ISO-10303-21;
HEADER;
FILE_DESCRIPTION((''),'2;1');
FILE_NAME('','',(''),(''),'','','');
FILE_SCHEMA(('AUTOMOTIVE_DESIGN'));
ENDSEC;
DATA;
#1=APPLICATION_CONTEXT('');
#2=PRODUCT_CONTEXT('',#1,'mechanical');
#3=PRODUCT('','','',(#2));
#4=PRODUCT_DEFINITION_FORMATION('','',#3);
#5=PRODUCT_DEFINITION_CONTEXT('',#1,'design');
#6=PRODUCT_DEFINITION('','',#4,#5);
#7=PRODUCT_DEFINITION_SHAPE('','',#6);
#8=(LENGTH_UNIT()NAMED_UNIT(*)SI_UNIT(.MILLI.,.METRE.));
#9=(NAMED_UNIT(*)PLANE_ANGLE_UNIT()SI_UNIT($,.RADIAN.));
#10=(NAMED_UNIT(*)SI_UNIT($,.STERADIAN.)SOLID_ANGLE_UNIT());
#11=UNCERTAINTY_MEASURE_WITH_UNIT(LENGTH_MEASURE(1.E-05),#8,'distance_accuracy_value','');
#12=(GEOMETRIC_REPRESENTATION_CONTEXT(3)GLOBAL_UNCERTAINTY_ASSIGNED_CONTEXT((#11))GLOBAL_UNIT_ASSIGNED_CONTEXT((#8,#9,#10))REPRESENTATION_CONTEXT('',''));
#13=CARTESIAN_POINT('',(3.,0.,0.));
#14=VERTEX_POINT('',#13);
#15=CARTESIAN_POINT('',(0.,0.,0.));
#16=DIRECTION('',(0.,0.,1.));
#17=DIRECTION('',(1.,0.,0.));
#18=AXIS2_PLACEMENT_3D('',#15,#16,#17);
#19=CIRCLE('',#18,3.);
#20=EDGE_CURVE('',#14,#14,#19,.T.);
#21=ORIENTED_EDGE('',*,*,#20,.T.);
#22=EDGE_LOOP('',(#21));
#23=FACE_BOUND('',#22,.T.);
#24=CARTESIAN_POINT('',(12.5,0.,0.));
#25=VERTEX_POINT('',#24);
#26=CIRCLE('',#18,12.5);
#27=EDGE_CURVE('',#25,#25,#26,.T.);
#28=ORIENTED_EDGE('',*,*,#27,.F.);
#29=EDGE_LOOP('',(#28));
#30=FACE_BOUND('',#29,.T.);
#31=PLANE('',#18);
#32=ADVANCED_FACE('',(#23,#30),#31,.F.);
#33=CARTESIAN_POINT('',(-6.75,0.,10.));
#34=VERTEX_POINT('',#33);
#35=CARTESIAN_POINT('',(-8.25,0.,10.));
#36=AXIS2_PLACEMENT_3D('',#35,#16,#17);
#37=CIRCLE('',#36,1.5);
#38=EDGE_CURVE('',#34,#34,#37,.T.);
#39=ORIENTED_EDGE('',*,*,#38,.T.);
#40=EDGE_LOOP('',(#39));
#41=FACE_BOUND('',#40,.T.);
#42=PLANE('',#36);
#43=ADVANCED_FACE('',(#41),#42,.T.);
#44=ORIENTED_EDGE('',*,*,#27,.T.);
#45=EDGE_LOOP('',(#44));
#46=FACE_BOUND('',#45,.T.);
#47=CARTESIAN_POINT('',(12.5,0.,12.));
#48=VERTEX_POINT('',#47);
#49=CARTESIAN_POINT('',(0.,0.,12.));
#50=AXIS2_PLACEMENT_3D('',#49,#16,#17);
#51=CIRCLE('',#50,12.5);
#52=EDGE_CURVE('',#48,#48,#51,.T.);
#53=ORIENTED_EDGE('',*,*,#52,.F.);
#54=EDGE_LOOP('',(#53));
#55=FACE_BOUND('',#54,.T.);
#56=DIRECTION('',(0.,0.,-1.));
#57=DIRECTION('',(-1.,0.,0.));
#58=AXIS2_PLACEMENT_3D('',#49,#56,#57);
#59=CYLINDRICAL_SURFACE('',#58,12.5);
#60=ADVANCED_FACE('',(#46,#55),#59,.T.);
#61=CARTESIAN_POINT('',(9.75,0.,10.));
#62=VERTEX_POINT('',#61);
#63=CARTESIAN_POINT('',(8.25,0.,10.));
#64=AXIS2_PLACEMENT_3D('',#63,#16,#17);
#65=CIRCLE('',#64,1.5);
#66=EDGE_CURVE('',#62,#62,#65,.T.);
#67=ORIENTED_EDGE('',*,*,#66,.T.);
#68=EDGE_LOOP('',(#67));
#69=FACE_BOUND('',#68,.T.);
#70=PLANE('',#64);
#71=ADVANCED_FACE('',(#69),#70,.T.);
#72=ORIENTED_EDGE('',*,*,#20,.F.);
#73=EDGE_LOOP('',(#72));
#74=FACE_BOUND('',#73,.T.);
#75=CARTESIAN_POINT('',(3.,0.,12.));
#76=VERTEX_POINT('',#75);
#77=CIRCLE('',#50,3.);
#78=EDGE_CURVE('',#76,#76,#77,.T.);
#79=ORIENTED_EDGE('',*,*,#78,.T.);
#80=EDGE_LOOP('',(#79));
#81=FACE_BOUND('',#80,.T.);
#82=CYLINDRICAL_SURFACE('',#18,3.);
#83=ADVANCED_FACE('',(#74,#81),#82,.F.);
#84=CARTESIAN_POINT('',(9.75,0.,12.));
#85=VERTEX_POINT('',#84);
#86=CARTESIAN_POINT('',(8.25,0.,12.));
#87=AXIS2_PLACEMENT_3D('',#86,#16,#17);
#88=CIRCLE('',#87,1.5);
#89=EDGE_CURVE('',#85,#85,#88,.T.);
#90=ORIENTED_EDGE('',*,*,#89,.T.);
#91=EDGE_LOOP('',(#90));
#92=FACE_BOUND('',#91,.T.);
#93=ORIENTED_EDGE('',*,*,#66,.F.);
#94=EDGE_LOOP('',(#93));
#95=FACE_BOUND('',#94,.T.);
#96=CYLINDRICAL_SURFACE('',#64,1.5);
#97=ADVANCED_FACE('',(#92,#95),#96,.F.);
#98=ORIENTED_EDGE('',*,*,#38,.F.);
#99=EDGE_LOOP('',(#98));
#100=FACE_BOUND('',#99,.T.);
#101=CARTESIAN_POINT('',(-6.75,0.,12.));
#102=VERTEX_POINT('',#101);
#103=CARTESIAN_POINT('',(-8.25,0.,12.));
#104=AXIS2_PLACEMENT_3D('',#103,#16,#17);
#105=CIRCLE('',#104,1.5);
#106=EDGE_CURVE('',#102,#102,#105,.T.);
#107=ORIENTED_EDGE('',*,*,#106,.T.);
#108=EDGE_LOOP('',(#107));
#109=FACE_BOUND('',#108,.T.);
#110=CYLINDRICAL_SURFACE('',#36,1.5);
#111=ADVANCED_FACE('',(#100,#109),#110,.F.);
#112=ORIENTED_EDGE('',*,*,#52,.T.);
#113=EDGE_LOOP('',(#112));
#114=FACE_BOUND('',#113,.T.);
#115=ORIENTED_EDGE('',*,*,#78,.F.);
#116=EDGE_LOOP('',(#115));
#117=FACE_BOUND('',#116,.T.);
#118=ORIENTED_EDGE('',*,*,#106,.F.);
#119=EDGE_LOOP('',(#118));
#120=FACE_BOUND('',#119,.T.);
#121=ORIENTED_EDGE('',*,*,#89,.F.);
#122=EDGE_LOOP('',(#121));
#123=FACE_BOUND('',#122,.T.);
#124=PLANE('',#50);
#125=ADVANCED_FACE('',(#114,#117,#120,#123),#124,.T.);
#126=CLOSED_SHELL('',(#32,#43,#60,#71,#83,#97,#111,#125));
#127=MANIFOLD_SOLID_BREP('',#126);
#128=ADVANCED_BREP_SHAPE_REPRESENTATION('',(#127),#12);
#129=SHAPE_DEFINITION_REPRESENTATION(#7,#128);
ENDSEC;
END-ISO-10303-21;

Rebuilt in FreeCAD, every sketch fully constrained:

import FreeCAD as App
import Part
import Sketcher
Q = App.Units.Quantity

doc = App.newDocument("Part")
body = doc.addObject("PartDesign::Body", "Body")

sketch1 = body.newObject("Sketcher::SketchObject", "Sketch")
sketch1.AttachmentSupport = (doc.getObject("XY_Plane"), [""])
sketch1.MapMode = "FlatFace"
sketch1.addGeometry(Part.Circle(App.Vector(0, 0, 0), App.Vector(0, 0, 1), 12.5), False)
sketch1.addConstraint([
    Sketcher.Constraint("Coincident", 0, 3, -1, 1),
    Sketcher.Constraint("Diameter", 0, Q("25 mm")),
])
pad1 = body.newObject("PartDesign::Pad", "Pad")
pad1.Profile = sketch1
pad1.Length = 12

sketch2 = body.newObject("Sketcher::SketchObject", "Sketch001")
sketch2.AttachmentSupport = (doc.getObject("XY_Plane"), [""])
sketch2.MapMode = "FlatFace"
sketch2.AttachmentOffset = App.Placement(App.Vector(0, 0, 12), App.Rotation())
sketch2.addGeometry(Part.Circle(App.Vector(0, 0, 0), App.Vector(0, 0, 1), 3), False)
sketch2.addConstraint([
    Sketcher.Constraint("Coincident", 0, 3, -1, 1),
    Sketcher.Constraint("Diameter", 0, Q("6 mm")),
])
pocket1 = body.newObject("PartDesign::Pocket", "Pocket")
pocket1.Profile = sketch2
pocket1.Length = 12

sketch3 = body.newObject("Sketcher::SketchObject", "Sketch002")
sketch3.AttachmentSupport = (doc.getObject("XY_Plane"), [""])
sketch3.MapMode = "FlatFace"
sketch3.AttachmentOffset = App.Placement(App.Vector(0, 0, 12), App.Rotation())
sketch3.addGeometry([
    Part.Circle(App.Vector(-8.25, 0, 0), App.Vector(0, 0, 1), 1.5),
    Part.Circle(App.Vector(8.25, 0, 0), App.Vector(0, 0, 1), 1.5),
], False)
sketch3.addConstraint([
    Sketcher.Constraint("Equal", 0, 1),
    Sketcher.Constraint("Symmetric", 0, 3, 1, 3, -1, 1),
    Sketcher.Constraint("PointOnObject", 0, 3, -1),
    Sketcher.Constraint("Diameter", 0, Q("3 mm")),
    Sketcher.Constraint("DistanceX", 0, 3, 1, 3, Q("16.5 mm")),
])
pocket2 = body.newObject("PartDesign::Pocket", "Pocket001")
pocket2.Profile = sketch3
pocket2.Length = 2

doc.recompute()
